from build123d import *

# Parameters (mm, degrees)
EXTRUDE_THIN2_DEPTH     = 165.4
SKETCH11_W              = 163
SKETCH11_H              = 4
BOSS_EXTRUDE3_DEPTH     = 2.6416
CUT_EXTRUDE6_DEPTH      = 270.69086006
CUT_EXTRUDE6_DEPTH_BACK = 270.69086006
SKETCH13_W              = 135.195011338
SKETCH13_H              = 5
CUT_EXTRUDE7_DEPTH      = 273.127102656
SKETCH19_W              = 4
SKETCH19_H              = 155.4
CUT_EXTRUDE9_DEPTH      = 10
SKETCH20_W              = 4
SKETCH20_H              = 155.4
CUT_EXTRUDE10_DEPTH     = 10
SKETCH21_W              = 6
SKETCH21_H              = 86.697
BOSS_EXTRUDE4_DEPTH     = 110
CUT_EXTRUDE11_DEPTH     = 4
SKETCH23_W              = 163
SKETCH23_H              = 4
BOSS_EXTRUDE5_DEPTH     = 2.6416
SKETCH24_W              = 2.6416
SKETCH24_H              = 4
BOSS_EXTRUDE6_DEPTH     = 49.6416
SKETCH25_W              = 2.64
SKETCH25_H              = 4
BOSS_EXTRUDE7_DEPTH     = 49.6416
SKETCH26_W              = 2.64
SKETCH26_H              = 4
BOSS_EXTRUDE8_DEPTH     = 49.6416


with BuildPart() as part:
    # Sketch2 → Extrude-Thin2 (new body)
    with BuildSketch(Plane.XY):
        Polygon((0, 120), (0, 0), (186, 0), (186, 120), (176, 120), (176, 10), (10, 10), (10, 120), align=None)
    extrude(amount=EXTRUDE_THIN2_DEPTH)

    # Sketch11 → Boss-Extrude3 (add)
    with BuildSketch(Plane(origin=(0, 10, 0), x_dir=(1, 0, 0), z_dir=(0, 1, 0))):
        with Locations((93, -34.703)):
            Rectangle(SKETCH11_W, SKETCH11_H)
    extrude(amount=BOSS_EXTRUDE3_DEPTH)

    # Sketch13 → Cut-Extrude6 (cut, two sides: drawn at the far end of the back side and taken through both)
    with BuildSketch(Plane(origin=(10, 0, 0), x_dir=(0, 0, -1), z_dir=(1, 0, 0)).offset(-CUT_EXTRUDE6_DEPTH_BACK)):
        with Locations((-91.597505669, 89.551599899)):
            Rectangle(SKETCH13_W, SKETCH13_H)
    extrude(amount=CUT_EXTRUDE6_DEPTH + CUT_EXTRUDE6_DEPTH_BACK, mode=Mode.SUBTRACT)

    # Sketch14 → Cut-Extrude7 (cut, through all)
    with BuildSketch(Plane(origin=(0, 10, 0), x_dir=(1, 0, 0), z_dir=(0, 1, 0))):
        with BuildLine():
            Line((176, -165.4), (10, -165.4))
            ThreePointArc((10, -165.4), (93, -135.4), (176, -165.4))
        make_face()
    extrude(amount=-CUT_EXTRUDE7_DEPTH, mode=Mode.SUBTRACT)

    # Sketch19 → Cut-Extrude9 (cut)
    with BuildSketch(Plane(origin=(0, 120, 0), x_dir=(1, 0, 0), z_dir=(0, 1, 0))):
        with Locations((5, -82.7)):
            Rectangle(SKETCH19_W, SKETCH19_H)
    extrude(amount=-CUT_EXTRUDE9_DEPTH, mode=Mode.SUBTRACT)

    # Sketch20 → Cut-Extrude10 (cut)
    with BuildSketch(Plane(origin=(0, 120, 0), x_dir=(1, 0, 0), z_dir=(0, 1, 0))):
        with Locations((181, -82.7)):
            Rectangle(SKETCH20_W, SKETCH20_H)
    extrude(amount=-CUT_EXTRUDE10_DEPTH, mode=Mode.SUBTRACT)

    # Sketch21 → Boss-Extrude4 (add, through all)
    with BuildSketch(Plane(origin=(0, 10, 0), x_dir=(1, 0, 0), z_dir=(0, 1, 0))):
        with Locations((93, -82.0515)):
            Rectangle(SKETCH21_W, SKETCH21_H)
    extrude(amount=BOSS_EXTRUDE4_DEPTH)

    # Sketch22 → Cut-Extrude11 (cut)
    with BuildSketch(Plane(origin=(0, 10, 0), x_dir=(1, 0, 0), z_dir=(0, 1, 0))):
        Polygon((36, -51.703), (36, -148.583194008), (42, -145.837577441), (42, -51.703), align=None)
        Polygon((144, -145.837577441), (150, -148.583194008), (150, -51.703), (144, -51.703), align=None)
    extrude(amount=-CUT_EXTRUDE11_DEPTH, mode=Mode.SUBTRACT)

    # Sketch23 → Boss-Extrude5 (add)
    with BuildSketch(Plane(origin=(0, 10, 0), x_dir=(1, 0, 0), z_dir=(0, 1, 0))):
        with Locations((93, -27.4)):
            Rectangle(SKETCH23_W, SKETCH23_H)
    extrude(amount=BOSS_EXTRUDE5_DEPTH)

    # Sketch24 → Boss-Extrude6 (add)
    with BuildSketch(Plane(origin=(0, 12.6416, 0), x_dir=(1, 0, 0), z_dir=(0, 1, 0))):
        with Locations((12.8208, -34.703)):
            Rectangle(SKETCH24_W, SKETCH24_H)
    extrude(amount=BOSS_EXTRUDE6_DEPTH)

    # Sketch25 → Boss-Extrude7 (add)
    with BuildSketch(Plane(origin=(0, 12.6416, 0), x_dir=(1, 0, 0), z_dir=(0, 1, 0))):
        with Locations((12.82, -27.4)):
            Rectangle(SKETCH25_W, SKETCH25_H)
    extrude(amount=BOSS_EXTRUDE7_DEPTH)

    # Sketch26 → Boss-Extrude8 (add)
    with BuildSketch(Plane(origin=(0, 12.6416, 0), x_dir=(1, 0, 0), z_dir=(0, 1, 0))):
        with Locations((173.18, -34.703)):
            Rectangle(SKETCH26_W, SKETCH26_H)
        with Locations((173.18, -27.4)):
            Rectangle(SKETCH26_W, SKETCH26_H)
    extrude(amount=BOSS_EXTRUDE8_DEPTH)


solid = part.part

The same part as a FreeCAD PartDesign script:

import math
import FreeCAD as App
import Part
import Sketcher
from FreeCAD import Vector


def add_polygon(sketch, points):
    """Adds a closed chain of lines whose ends are joined by coincident constraints."""
    first, n = sketch.GeometryCount, len(points)
    for a, b in zip(points, points[1:] + points[:1]):
        sketch.addGeometry(Part.LineSegment(App.Vector(*a, 0), App.Vector(*b, 0)), False)
    for i in range(n):
        sketch.addConstraint(Sketcher.Constraint("Coincident", first + i, 2, first + (i + 1) % n, 1))

doc = App.newDocument("Part")
body = doc.addObject("PartDesign::Body", "Body")

sketch1 = doc.addObject("Sketcher::SketchObject", "Sketch")
body.addObject(sketch1)
sketch1.AttachmentSupport = (doc.XY_Plane, [""])
sketch1.MapMode = "FlatFace"
add_polygon(sketch1, [(0, 120), (0, 0), (186, 0), (186, 120), (176, 120), (176, 10), (10, 10), (10, 120)])
sketch1.addConstraint(Sketcher.Constraint("Vertical", 0))
sketch1.addConstraint(Sketcher.Constraint("Horizontal", 1))
sketch1.addConstraint(Sketcher.Constraint("Vertical", 2))
sketch1.addConstraint(Sketcher.Constraint("Horizontal", 3))
sketch1.addConstraint(Sketcher.Constraint("Vertical", 4))
sketch1.addConstraint(Sketcher.Constraint("Horizontal", 5))
sketch1.addConstraint(Sketcher.Constraint("Vertical", 6))
sketch1.addConstraint(Sketcher.Constraint("Horizontal", 7))
sketch1.addConstraint(Sketcher.Constraint("Coincident", 0, 2, -1, 1))
sketch1.addConstraint(Sketcher.Constraint("Horizontal", 3, 2, 6, 2))
sketch1.addConstraint(Sketcher.Constraint("Equal", 3, 7))
sketch1.addConstraint(Sketcher.Constraint("DistanceX", 1, 1, 1, 2, 186.0))
sketch1.addConstraint(Sketcher.Constraint("DistanceX", 3, 2, 3, 1, 10.0))
sketch1.addConstraint(Sketcher.Constraint("DistanceY", 0, 2, 0, 1, 120.0))
sketch1.addConstraint(Sketcher.Constraint("DistanceY", 4, 2, 4, 1, 110.0))
pad1 = doc.addObject("PartDesign::Pad", "Pad")
body.addObject(pad1)
pad1.Profile = sketch1
pad1.Length = 165.4

sketch2 = doc.addObject("Sketcher::SketchObject", "Sketch001")
body.addObject(sketch2)
sketch2.AttachmentSupport = (doc.XZ_Plane, [""])
sketch2.MapMode = "FlatFace"
sketch2.AttachmentOffset = App.Placement(Vector(0, 0, -10), App.Rotation())
add_polygon(sketch2, [(11.5, 32.703), (11.5, 36.703), (174.5, 36.703), (174.5, 32.703)])
sketch2.addConstraint(Sketcher.Constraint("Vertical", 0))
sketch2.addConstraint(Sketcher.Constraint("Horizontal", 1))
sketch2.addConstraint(Sketcher.Constraint("Vertical", 2))
sketch2.addConstraint(Sketcher.Constraint("Horizontal", 3))
sketch2.addConstraint(Sketcher.Constraint("DistanceX", 1, 1, 1, 2, 163.0))
sketch2.addConstraint(Sketcher.Constraint("DistanceY", 0, 1, 0, 2, 4.0))
sketch2.addConstraint(Sketcher.Constraint("DistanceX", -1, 1, 0, 2, 11.5))
sketch2.addConstraint(Sketcher.Constraint("DistanceY", -1, 1, 0, 2, 36.703))
pad2 = doc.addObject("PartDesign::Pad", "Pad001")
body.addObject(pad2)
pad2.Profile = sketch2
pad2.Length = 2.6416
pad2.Reversed = True

sketch3 = doc.addObject("Sketcher::SketchObject", "Sketch002")
body.addObject(sketch3)
sketch3.AttachmentSupport = (doc.YZ_Plane, [""])
sketch3.MapMode = "FlatFace"
sketch3.AttachmentOffset = App.Placement(Vector(0, 0, 10), App.Rotation())
add_polygon(sketch3, [(92.0516, 159.195011), (87.0516, 159.195011), (87.0516, 24), (92.0516, 24)])
sketch3.addConstraint(Sketcher.Constraint("Horizontal", 0))
sketch3.addConstraint(Sketcher.Constraint("Vertical", 1))
sketch3.addConstraint(Sketcher.Constraint("Horizontal", 2))
sketch3.addConstraint(Sketcher.Constraint("Vertical", 3))
sketch3.addConstraint(Sketcher.Constraint("DistanceX", 0, 2, 0, 1, 5.0))
sketch3.addConstraint(Sketcher.Constraint("DistanceY", -1, 1, 1, 2, 24.0))
sketch3.addConstraint(Sketcher.Constraint("DistanceY", 1, 2, 1, 1, 135.195011))
sketch3.addConstraint(Sketcher.Constraint("DistanceX", -1, 1, 0, 2, 87.0516))
pocket1 = doc.addObject("PartDesign::Pocket", "Pocket")
body.addObject(pocket1)
pocket1.Profile = sketch3
pocket1.Type = "ThroughAll"
pocket1.Midplane = True

sketch4 = doc.addObject("Sketcher::SketchObject", "Sketch003")
body.addObject(sketch4)
sketch4.AttachmentSupport = (doc.XZ_Plane, [""])
sketch4.MapMode = "FlatFace"
sketch4.AttachmentOffset = App.Placement(Vector(0, 0, -10), App.Rotation())
sketch4.addGeometry(Part.LineSegment(Vector(10, 165.4, 0), Vector(176, 165.4, 0)), False)
sketch4.addGeometry(Part.ArcOfCircle(Part.Circle(Vector(93, 265.216667, 0), Vector(0, 0, 1), 129.816667), math.radians(-129.744352), math.radians(-50.255648)), False)
sketch4.addConstraint(Sketcher.Constraint("Coincident", 0, 1, 1, 1))
sketch4.addConstraint(Sketcher.Constraint("Coincident", 1, 2, 0, 2))
sketch4.addConstraint(Sketcher.Constraint("Horizontal", 0))
sketch4.addConstraint(Sketcher.Constraint("DistanceX", 0, 1, 0, 2, 166.0))
sketch4.addConstraint(Sketcher.Constraint("DistanceX", -1, 1, 1, 3, 93.0))
sketch4.addConstraint(Sketcher.Constraint("DistanceY", -1, 1, 0, 1, 165.4))
sketch4.addConstraint(Sketcher.Constraint("Radius", 1, 129.816667))
pocket2 = doc.addObject("PartDesign::Pocket", "Pocket001")
body.addObject(pocket2)
pocket2.Profile = sketch4
pocket2.Type = "ThroughAll"
pocket2.Reversed = True

sketch5 = doc.addObject("Sketcher::SketchObject", "Sketch004")
body.addObject(sketch5)
sketch5.AttachmentSupport = (doc.XZ_Plane, [""])
sketch5.MapMode = "FlatFace"
sketch5.AttachmentOffset = App.Placement(Vector(0, 0, -120), App.Rotation())
add_polygon(sketch5, [(3, 5), (3, 160.4), (7, 160.4), (7, 5)])
sketch5.addConstraint(Sketcher.Constraint("Vertical", 0))
sketch5.addConstraint(Sketcher.Constraint("Horizontal", 1))
sketch5.addConstraint(Sketcher.Constraint("Vertical", 2))
sketch5.addConstraint(Sketcher.Constraint("Horizontal", 3))
sketch5.addConstraint(Sketcher.Constraint("DistanceX", 1, 1, 1, 2, 4.0))
sketch5.addConstraint(Sketcher.Constraint("DistanceY", 0, 1, 0, 2, 155.4))
sketch5.addConstraint(Sketcher.Constraint("DistanceX", -1, 1, 0, 2, 3.0))
sketch5.addConstraint(Sketcher.Constraint("DistanceY", -1, 1, 2, 2, 5.0))
pocket3 = doc.addObject("PartDesign::Pocket", "Pocket002")
body.addObject(pocket3)
pocket3.Profile = sketch5
pocket3.Length = 10
pocket3.Reversed = True

sketch6 = doc.addObject("Sketcher::SketchObject", "Sketch005")
body.addObject(sketch6)
sketch6.AttachmentSupport = (doc.XZ_Plane, [""])
sketch6.MapMode = "FlatFace"
sketch6.AttachmentOffset = App.Placement(Vector(0, 0, -120), App.Rotation())
add_polygon(sketch6, [(179, 5), (179, 160.4), (183, 160.4), (183, 5)])
sketch6.addConstraint(Sketcher.Constraint("Vertical", 0))
sketch6.addConstraint(Sketcher.Constraint("Horizontal", 1))
sketch6.addConstraint(Sketcher.Constraint("Vertical", 2))
sketch6.addConstraint(Sketcher.Constraint("Horizontal", 3))
sketch6.addConstraint(Sketcher.Constraint("DistanceX", 1, 1, 1, 2, 4.0))
sketch6.addConstraint(Sketcher.Constraint("DistanceY", 0, 1, 0, 2, 155.4))
sketch6.addConstraint(Sketcher.Constraint("DistanceX", -1, 1, 0, 2, 179.0))
sketch6.addConstraint(Sketcher.Constraint("DistanceY", -1, 1, 2, 2, 5.0))
pocket4 = doc.addObject("PartDesign::Pocket", "Pocket003")
body.addObject(pocket4)
pocket4.Profile = sketch6
pocket4.Length = 10
pocket4.Reversed = True

sketch7 = doc.addObject("Sketcher::SketchObject", "Sketch006")
body.addObject(sketch7)
sketch7.AttachmentSupport = (doc.XZ_Plane, [""])
sketch7.MapMode = "FlatFace"
sketch7.AttachmentOffset = App.Placement(Vector(0, 0, -10), App.Rotation())
add_polygon(sketch7, [(90, 38.703), (90, 125.4), (96, 125.4), (96, 38.703)])
sketch7.addConstraint(Sketcher.Constraint("Vertical", 0))
sketch7.addConstraint(Sketcher.Constraint("Horizontal", 1))
sketch7.addConstraint(Sketcher.Constraint("Vertical", 2))
sketch7.addConstraint(Sketcher.Constraint("Horizontal", 3))
sketch7.addConstraint(Sketcher.Constraint("DistanceX", 1, 1, 1, 2, 6.0))
sketch7.addConstraint(Sketcher.Constraint("DistanceX", -1, 1, 0, 2, 90.0))
sketch7.addConstraint(Sketcher.Constraint("DistanceY", -1, 1, 0, 2, 125.4))
sketch7.addConstraint(Sketcher.Constraint("DistanceY", 0, 1, 0, 2, 86.697))
pad3 = doc.addObject("PartDesign::Pad", "Pad002")
body.addObject(pad3)
pad3.Profile = sketch7
pad3.Length = 110
pad3.Reversed = True

sketch8 = doc.addObject("Sketcher::SketchObject", "Sketch007")
body.addObject(sketch8)
sketch8.AttachmentSupport = (doc.XZ_Plane, [""])
sketch8.MapMode = "FlatFace"
sketch8.AttachmentOffset = App.Placement(Vector(0, 0, -10), App.Rotation())
add_polygon(sketch8, [(36, 51.703), (36, 148.583194), (42, 145.837577), (42, 51.703)])
add_polygon(sketch8, [(144, 145.837577), (150, 148.583194), (150, 51.703), (144, 51.703)])
sketch8.addConstraint(Sketcher.Constraint("Vertical", 0))
sketch8.addConstraint(Sketcher.Constraint("Vertical", 2))
sketch8.addConstraint(Sketcher.Constraint("Horizontal", 3))
sketch8.addConstraint(Sketcher.Constraint("Vertical", 5))
sketch8.addConstraint(Sketcher.Constraint("Horizontal", 6))
sketch8.addConstraint(Sketcher.Constraint("Vertical", 7))
sketch8.addConstraint(Sketcher.Constraint("Horizontal", 0, 2, 4, 2))
sketch8.addConstraint(Sketcher.Constraint("Horizontal", 3, 2, 5, 2))
sketch8.addConstraint(Sketcher.Constraint("Horizontal", 1, 2, 7, 2))
sketch8.addConstraint(Sketcher.Constraint("Equal", 3, 6))
sketch8.addConstraint(Sketcher.Constraint("DistanceX", 3, 2, 3, 1, 6.0))
sketch8.addConstraint(Sketcher.Constraint("DistanceX", -1, 1, 0, 2, 36.0))
sketch8.addConstraint(Sketcher.Constraint("DistanceX", -1, 1, 4, 2, 150.0))
sketch8.addConstraint(Sketcher.Constraint("DistanceY", -1, 1, 2, 2, 51.703))
sketch8.addConstraint(Sketcher.Constraint("DistanceY", 0, 1, 0, 2, 96.880194))
sketch8.addConstraint(Sketcher.Constraint("DistanceY", 2, 2, 2, 1, 94.134577))
pocket5 = doc.addObject("PartDesign::Pocket", "Pocket004")
body.addObject(pocket5)
pocket5.Profile = sketch8
pocket5.Length = 4
pocket5.Reversed = True

sketch9 = doc.addObject("Sketcher::SketchObject", "Sketch008")
body.addObject(sketch9)
sketch9.AttachmentSupport = (doc.XZ_Plane, [""])
sketch9.MapMode = "FlatFace"
sketch9.AttachmentOffset = App.Placement(Vector(0, 0, -10), App.Rotation())
add_polygon(sketch9, [(11.5, 25.4), (11.5, 29.4), (174.5, 29.4), (174.5, 25.4)])
sketch9.addConstraint(Sketcher.Constraint("Vertical", 0))
sketch9.addConstraint(Sketcher.Constraint("Horizontal", 1))
sketch9.addConstraint(Sketcher.Constraint("Vertical", 2))
sketch9.addConstraint(Sketcher.Constraint("Horizontal", 3))
sketch9.addConstraint(Sketcher.Constraint("DistanceX", 1, 1, 1, 2, 163.0))
sketch9.addConstraint(Sketcher.Constraint("DistanceY", 0, 1, 0, 2, 4.0))
sketch9.addConstraint(Sketcher.Constraint("DistanceX", -1, 1, 0, 2, 11.5))
sketch9.addConstraint(Sketcher.Constraint("DistanceY", -1, 1, 0, 2, 29.4))
pad4 = doc.addObject("PartDesign::Pad", "Pad003")
body.addObject(pad4)
pad4.Profile = sketch9
pad4.Length = 2.6416
pad4.Reversed = True

sketch10 = doc.addObject("Sketcher::SketchObject", "Sketch009")
body.addObject(sketch10)
sketch10.AttachmentSupport = (doc.XZ_Plane, [""])
sketch10.MapMode = "FlatFace"
sketch10.AttachmentOffset = App.Placement(Vector(0, 0, -12.6416), App.Rotation())
add_polygon(sketch10, [(11.5, 32.703), (11.5, 36.703), (14.1416, 36.703), (14.1416, 32.703)])
sketch10.addConstraint(Sketcher.Constraint("Vertical", 0))
sketch10.addConstraint(Sketcher.Constraint("Horizontal", 1))
sketch10.addConstraint(Sketcher.Constraint("Vertical", 2))
sketch10.addConstraint(Sketcher.Constraint("Horizontal", 3))
sketch10.addConstraint(Sketcher.Constraint("DistanceY", 0, 1, 0, 2, 4.0))
sketch10.addConstraint(Sketcher.Constraint("DistanceX", -1, 1, 0, 2, 11.5))
sketch10.addConstraint(Sketcher.Constraint("DistanceX", 1, 1, 1, 2, 2.6416))
sketch10.addConstraint(Sketcher.Constraint("DistanceY", -1, 1, 0, 2, 36.703))
pad5 = doc.addObject("PartDesign::Pad", "Pad004")
body.addObject(pad5)
pad5.Profile = sketch10
pad5.Length = 49.6416
pad5.Reversed = True

sketch11 = doc.addObject("Sketcher::SketchObject", "Sketch010")
body.addObject(sketch11)
sketch11.AttachmentSupport = (doc.XZ_Plane, [""])
sketch11.MapMode = "FlatFace"
sketch11.AttachmentOffset = App.Placement(Vector(0, 0, -12.6416), App.Rotation())
add_polygon(sketch11, [(11.5, 25.4), (11.5, 29.4), (14.14, 29.4), (14.14, 25.4)])
sketch11.addConstraint(Sketcher.Constraint("Vertical", 0))
sketch11.addConstraint(Sketcher.Constraint("Horizontal", 1))
sketch11.addConstraint(Sketcher.Constraint("Vertical", 2))
sketch11.addConstraint(Sketcher.Constraint("Horizontal", 3))
sketch11.addConstraint(Sketcher.Constraint("DistanceY", 0, 1, 0, 2, 4.0))
sketch11.addConstraint(Sketcher.Constraint("DistanceX", 1, 1, 1, 2, 2.64))
sketch11.addConstraint(Sketcher.Constraint("DistanceX", -1, 1, 0, 2, 11.5))
sketch11.addConstraint(Sketcher.Constraint("DistanceY", -1, 1, 0, 2, 29.4))
pad6 = doc.addObject("PartDesign::Pad", "Pad005")
body.addObject(pad6)
pad6.Profile = sketch11
pad6.Length = 49.6416
pad6.Reversed = True

sketch12 = doc.addObject("Sketcher::SketchObject", "Sketch011")
body.addObject(sketch12)
sketch12.AttachmentSupport = (doc.XZ_Plane, [""])
sketch12.MapMode = "FlatFace"
sketch12.AttachmentOffset = App.Placement(Vector(0, 0, -12.6416), App.Rotation())
add_polygon(sketch12, [(171.86, 32.703), (171.86, 36.703), (174.5, 36.703), (174.5, 32.703)])
add_polygon(sketch12, [(171.86, 25.4), (171.86, 29.4), (174.5, 29.4), (174.5, 25.4)])
sketch12.addConstraint(Sketcher.Constraint("Vertical", 0))
sketch12.addConstraint(Sketcher.Constraint("Horizontal", 1))
sketch12.addConstraint(Sketcher.Constraint("Vertical", 2))
sketch12.addConstraint(Sketcher.Constraint("Horizontal", 3))
sketch12.addConstraint(Sketcher.Constraint("Vertical", 4))
sketch12.addConstraint(Sketcher.Constraint("Horizontal", 5))
sketch12.addConstraint(Sketcher.Constraint("Vertical", 6))
sketch12.addConstraint(Sketcher.Constraint("Horizontal", 7))
sketch12.addConstraint(Sketcher.Constraint("Vertical", 3, 2, 4, 2))
sketch12.addConstraint(Sketcher.Constraint("Vertical", 2, 2, 5, 2))
sketch12.addConstraint(Sketcher.Constraint("Equal", 2, 4))
sketch12.addConstraint(Sketcher.Constraint("DistanceY", 0, 1, 0, 2, 4.0))
sketch12.addConstraint(Sketcher.Constraint("DistanceX", 1, 1, 1, 2, 2.64))
sketch12.addConstraint(Sketcher.Constraint("DistanceX", -1, 1, 1, 2, 174.5))
sketch12.addConstraint(Sketcher.Constraint("DistanceY", -1, 1, 4, 2, 29.4))
sketch12.addConstraint(Sketcher.Constraint("DistanceY", -1, 1, 0, 2, 36.703))
pad7 = doc.addObject("PartDesign::Pad", "Pad006")
body.addObject(pad7)
pad7.Profile = sketch12
pad7.Length = 49.6416
pad7.Reversed = True

doc.recompute()
